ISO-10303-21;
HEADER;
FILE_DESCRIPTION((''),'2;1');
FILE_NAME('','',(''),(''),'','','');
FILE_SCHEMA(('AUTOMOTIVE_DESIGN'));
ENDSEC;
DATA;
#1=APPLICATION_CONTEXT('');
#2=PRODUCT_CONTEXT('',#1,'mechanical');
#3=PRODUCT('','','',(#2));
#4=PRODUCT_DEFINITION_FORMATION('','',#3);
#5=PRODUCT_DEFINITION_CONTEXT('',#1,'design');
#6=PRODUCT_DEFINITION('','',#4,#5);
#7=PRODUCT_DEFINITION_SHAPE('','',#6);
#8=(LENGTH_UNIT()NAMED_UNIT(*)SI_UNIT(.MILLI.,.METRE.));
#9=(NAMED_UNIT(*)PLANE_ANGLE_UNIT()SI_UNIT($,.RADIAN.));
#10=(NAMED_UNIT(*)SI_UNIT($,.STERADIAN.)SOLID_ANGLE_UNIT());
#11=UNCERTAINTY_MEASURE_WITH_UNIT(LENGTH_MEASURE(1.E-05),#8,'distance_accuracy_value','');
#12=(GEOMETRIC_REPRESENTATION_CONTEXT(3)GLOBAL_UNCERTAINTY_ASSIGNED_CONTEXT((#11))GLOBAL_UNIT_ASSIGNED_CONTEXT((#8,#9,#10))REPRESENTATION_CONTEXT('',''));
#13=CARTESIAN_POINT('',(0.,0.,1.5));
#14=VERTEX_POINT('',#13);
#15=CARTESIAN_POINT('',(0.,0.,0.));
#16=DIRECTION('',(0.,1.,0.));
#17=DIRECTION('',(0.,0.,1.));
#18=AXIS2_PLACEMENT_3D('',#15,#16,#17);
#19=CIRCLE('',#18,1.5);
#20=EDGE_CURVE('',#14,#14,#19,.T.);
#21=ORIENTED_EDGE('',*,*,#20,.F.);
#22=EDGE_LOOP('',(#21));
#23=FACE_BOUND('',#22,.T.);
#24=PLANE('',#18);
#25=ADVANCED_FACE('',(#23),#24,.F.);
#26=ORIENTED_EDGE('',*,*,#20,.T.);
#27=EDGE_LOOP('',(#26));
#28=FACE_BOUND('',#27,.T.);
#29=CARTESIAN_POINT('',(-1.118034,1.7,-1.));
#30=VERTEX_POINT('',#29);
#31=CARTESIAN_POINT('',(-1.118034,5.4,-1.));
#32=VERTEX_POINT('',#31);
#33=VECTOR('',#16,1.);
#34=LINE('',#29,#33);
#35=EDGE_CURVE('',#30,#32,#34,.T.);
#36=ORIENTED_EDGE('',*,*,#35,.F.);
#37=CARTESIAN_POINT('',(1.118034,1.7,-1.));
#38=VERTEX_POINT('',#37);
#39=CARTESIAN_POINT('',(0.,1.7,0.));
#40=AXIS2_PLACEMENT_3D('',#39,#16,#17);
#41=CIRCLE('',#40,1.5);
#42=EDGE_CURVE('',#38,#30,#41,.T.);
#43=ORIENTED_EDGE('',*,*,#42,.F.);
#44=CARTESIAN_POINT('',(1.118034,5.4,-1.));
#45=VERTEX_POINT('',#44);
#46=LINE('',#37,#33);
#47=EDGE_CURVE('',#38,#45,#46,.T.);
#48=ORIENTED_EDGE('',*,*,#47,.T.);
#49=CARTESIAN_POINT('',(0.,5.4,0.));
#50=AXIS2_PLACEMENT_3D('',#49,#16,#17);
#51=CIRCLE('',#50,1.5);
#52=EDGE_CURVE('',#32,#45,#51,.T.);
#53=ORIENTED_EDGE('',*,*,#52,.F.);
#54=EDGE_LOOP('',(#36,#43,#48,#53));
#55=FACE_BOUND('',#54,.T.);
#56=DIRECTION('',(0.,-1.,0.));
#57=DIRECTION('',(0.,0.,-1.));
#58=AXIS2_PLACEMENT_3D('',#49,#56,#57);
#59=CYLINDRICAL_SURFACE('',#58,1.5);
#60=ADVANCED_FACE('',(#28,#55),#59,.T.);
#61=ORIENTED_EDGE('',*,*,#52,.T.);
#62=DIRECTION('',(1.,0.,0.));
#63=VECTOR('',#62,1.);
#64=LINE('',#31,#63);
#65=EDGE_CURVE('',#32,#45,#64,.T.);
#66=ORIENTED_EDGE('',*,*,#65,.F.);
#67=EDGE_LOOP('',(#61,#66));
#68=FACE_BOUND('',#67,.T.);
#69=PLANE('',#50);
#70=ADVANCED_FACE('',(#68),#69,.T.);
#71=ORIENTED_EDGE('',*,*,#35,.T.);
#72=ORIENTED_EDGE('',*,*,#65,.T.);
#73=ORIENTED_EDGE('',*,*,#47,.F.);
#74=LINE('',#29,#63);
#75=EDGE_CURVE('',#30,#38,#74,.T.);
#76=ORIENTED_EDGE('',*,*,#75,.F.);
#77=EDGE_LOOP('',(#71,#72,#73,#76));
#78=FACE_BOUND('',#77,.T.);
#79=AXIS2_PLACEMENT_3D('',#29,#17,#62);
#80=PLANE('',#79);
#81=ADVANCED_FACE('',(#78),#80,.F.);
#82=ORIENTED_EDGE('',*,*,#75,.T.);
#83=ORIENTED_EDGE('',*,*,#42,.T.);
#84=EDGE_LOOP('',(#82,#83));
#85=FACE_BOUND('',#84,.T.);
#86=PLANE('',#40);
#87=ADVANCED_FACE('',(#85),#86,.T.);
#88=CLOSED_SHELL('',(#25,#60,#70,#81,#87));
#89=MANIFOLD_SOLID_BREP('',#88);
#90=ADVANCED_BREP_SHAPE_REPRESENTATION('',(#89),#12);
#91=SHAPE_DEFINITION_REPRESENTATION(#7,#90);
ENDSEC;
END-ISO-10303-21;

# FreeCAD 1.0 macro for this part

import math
import FreeCAD as App
import Part
import Sketcher
Q = App.Units.Quantity

doc = App.newDocument("Part")
params = doc.addObject("Spreadsheet::Sheet", "Params")
for row, (alias, value) in enumerate([
    ("sketch1_diameter", "3 mm"),
    ("pad1_length", "5.4 mm"),
    ("sketch2_radius", "1.5 mm"),
    ("pocket1_length", "3.7 mm"),
], start=1):
    params.set(f"A{row}", alias)
    params.set(f"B{row}", "=" + value)
    params.setAlias(f"B{row}", alias)

body = doc.addObject("PartDesign::Body", "Body")

# Sketch on XZ plane
sketch1 = body.newObject("Sketcher::SketchObject", "Sketch")
sketch1.AttachmentSupport = (doc.getObject("XZ_Plane"), [""])
sketch1.MapMode = "FlatFace"
sketch1.addGeometry(Part.Circle(App.Vector(0, 0, 0), App.Vector(0, 0, 1), 1.5), False)
sketch1.addConstraint(Sketcher.Constraint("Coincident", 0, 3, -1, 1))
sketch1.addConstraint(Sketcher.Constraint("Diameter", 0, Q("3 mm")))
sketch1.setExpression("Constraints[1]", "Params.sketch1_diameter")
pad1 = body.newObject("PartDesign::Pad", "Pad")
pad1.Profile = sketch1
pad1.setExpression("Length", "Params.pad1_length")
pad1.Reversed = True

# Sketch on XZ plane
sketch2 = body.newObject("Sketcher::SketchObject", "Sketch001")
sketch2.AttachmentSupport = (doc.getObject("XZ_Plane"), [""])
sketch2.MapMode = "FlatFace"
sketch2.AttachmentOffset = App.Placement(App.Vector(0, 0, -5.4), App.Rotation())
sketch2.addGeometry(Part.LineSegment(App.Vector(-1.1, -1, 0), App.Vector(1.1, -1, 0)), False)
sketch2.addGeometry(Part.ArcOfCircle(Part.Circle(App.Vector(0, 0, 0), App.Vector(0, 0, 1), 1.5), math.radians(-138), math.radians(-42)), False)
sketch2.addConstraint(Sketcher.Constraint("Coincident", 0, 1, 1, 1))
sketch2.addConstraint(Sketcher.Constraint("Coincident", 1, 2, 0, 2))
sketch2.addConstraint(Sketcher.Constraint("Horizontal", 0))
sketch2.addConstraint(Sketcher.Constraint("Coincident", 1, 3, -1, 1))
sketch2.addConstraint(Sketcher.Constraint("Radius", 1, Q("1.5 mm")))
sketch2.addConstraint(Sketcher.Constraint("DistanceY", 0, 1, -1, 1, Q("1 mm")))
sketch2.setExpression("Constraints[4]", "Params.sketch2_radius")
pocket1 = body.newObject("PartDesign::Pocket", "Pocket")
pocket1.Profile = sketch2
pocket1.setExpression("Length", "Params.pocket1_length")
pocket1.Reversed = True

doc.recompute()
